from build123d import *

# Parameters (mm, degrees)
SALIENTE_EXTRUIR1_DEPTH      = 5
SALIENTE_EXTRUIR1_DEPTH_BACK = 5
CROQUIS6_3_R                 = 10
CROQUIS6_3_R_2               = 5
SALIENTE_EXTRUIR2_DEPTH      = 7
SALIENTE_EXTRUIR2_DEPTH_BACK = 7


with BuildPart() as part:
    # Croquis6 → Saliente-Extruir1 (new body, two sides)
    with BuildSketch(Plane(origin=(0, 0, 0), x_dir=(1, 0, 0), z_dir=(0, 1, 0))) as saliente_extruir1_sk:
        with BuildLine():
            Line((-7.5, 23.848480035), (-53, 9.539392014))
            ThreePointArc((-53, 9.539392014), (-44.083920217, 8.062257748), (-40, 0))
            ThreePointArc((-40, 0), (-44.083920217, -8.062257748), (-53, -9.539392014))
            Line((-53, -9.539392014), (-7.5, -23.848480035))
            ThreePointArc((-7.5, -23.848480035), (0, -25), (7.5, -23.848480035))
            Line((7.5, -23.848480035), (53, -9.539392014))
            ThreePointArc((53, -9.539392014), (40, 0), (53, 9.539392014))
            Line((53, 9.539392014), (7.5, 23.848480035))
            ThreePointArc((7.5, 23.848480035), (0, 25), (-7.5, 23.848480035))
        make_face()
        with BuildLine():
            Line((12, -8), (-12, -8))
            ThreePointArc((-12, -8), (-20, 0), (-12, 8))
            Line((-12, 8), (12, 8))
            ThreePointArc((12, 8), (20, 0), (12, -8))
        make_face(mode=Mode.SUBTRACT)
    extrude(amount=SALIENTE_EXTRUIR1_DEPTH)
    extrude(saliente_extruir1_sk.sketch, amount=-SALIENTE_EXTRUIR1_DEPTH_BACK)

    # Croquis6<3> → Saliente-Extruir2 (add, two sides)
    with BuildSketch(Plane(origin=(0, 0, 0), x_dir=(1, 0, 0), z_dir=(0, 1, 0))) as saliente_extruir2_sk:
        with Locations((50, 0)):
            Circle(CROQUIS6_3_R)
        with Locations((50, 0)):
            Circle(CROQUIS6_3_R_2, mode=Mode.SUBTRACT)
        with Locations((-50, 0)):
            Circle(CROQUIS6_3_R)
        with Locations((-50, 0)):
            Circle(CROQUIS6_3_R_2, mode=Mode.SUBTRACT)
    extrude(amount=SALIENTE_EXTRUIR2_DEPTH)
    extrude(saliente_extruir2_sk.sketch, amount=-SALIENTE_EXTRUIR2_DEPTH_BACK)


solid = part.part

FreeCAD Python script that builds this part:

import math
import FreeCAD as App
import Part
import Sketcher
from FreeCAD import Vector
Q = App.Units.Quantity

doc = App.newDocument("Part")
body = doc.addObject("PartDesign::Body", "Body")

# Sketch on XZ plane
sketch1 = body.newObject("Sketcher::SketchObject", "Sketch")
sketch1.AttachmentSupport = (doc.getObject("XZ_Plane"), [""])
sketch1.MapMode = "FlatFace"
sketch1.addGeometry([
    Part.LineSegment(Vector(-8, -24, 0), Vector(-53, -10, 0)),  # 0
    Part.ArcOfCircle(Part.Circle(Vector(-50, 0, 0), Vector(0, 0, 1), 10), math.radians(-107), math.radians(0)),  # 1
    Part.ArcOfCircle(Part.Circle(Vector(-50, 0, 0), Vector(0, 0, 1), 10), math.radians(0), math.radians(107)),  # 2
    Part.LineSegment(Vector(-53, 10, 0), Vector(-8, 24, 0)),  # 3
    Part.ArcOfCircle(Part.Circle(Vector(0, 0, 0), Vector(0, 0, 1), 25), math.radians(73), math.radians(107)),  # 4
    Part.LineSegment(Vector(8, 24, 0), Vector(53, 10, 0)),  # 5
    Part.ArcOfCircle(Part.Circle(Vector(50, 0, 0), Vector(0, 0, 1), 10), math.radians(73), math.radians(287)),  # 6
    Part.LineSegment(Vector(53, -10, 0), Vector(8, -24, 0)),  # 7
    Part.ArcOfCircle(Part.Circle(Vector(0, 0, 0), Vector(0, 0, 1), 25), math.radians(-107), math.radians(-73)),  # 8
    Part.ArcOfCircle(Part.Circle(Vector(12, 0, 0), Vector(0, 0, 1), 8), math.radians(-90), math.radians(90)),  # 9
    Part.LineSegment(Vector(12, 8, 0), Vector(-12, 8, 0)),  # 10
    Part.ArcOfCircle(Part.Circle(Vector(-12, 0, 0), Vector(0, 0, 1), 8), math.radians(90), math.radians(270)),  # 11
    Part.LineSegment(Vector(-12, -8, 0), Vector(12, -8, 0)),  # 12
], False)
sketch1.addConstraint([
    Sketcher.Constraint("Tangent", 0, 2, 1, 1),
    Sketcher.Constraint("Tangent", 1, 2, 2, 1),
    Sketcher.Constraint("Tangent", 2, 2, 3, 1),
    Sketcher.Constraint("Tangent", 3, 2, 4, 2),
    Sketcher.Constraint("Tangent", 4, 1, 5, 1),
    Sketcher.Constraint("Tangent", 5, 2, 6, 1),
    Sketcher.Constraint("Tangent", 6, 2, 7, 1),
    Sketcher.Constraint("Tangent", 7, 2, 8, 2),
    Sketcher.Constraint("Tangent", 8, 1, 0, 1),
    Sketcher.Constraint("Tangent", 9, 2, 10, 1),
    Sketcher.Constraint("Tangent", 10, 2, 11, 1),
    Sketcher.Constraint("Tangent", 11, 2, 12, 1),
    Sketcher.Constraint("Tangent", 12, 2, 9, 1),
    Sketcher.Constraint("Horizontal", 10),
    Sketcher.Constraint("Horizontal", 12),
    Sketcher.Constraint("Coincident", 4, 3, -1, 1),
    Sketcher.Constraint("Coincident", 8, 3, -1, 1),
    Sketcher.Constraint("Equal", 1, 2),
    Sketcher.Constraint("Equal", 2, 6),
    Sketcher.Constraint("Equal", 4, 8),
    Sketcher.Constraint("Symmetric", 1, 3, 6, 3, -1, 1),
    Sketcher.Constraint("Symmetric", 9, 3, 11, 3, -1, 1),
    Sketcher.Constraint("PointOnObject", 1, 3, -1),
    Sketcher.Constraint("PointOnObject", 1, 2, -1),
    Sketcher.Constraint("Radius", 1, Q("10 mm")),
    Sketcher.Constraint("Radius", 4, Q("25 mm")),
    Sketcher.Constraint("Radius", 9, Q("8 mm")),
    Sketcher.Constraint("DistanceX", 10, 2, 10, 1, Q("24 mm")),
    Sketcher.Constraint("DistanceX", 1, 3, -1, 1, Q("50 mm")),
])
pad1 = body.newObject("PartDesign::Pad", "Pad")
pad1.Profile = sketch1
pad1.Type = "TwoLengths"
pad1.Length = 5
pad1.Length2 = 5
pad1.Reversed = True

# Sketch on XZ plane
sketch2 = body.newObject("Sketcher::SketchObject", "Sketch001")
sketch2.AttachmentSupport = (doc.getObject("XZ_Plane"), [""])
sketch2.MapMode = "FlatFace"
sketch2.addGeometry([
    Part.Circle(Vector(50, 0, 0), Vector(0, 0, 1), 10),
    Part.Circle(Vector(50, 0, 0), Vector(0, 0, 1), 5),
    Part.Circle(Vector(-50, 0, 0), Vector(0, 0, 1), 10),
    Part.Circle(Vector(-50, 0, 0), Vector(0, 0, 1), 5),
], False)
sketch2.addConstraint([
    Sketcher.Constraint("Coincident", 1, 3, 0, 3),
    Sketcher.Constraint("Coincident", 3, 3, 2, 3),
    Sketcher.Constraint("Equal", 0, 2),
    Sketcher.Constraint("Equal", 1, 3),
    Sketcher.Constraint("Symmetric", 0, 3, 2, 3, -1, 1),
    Sketcher.Constraint("PointOnObject", 0, 3, -1),
    Sketcher.Constraint("Diameter", 0, Q("20 mm")),
    Sketcher.Constraint("Diameter", 1, Q("10 mm")),
    Sketcher.Constraint("DistanceX", -1, 1, 0, 3, Q("50 mm")),
])
pad2 = body.newObject("PartDesign::Pad", "Pad001")
pad2.Profile = sketch2
pad2.Type = "TwoLengths"
pad2.Length = 7
pad2.Length2 = 7
pad2.Reversed = True

doc.recompute()
